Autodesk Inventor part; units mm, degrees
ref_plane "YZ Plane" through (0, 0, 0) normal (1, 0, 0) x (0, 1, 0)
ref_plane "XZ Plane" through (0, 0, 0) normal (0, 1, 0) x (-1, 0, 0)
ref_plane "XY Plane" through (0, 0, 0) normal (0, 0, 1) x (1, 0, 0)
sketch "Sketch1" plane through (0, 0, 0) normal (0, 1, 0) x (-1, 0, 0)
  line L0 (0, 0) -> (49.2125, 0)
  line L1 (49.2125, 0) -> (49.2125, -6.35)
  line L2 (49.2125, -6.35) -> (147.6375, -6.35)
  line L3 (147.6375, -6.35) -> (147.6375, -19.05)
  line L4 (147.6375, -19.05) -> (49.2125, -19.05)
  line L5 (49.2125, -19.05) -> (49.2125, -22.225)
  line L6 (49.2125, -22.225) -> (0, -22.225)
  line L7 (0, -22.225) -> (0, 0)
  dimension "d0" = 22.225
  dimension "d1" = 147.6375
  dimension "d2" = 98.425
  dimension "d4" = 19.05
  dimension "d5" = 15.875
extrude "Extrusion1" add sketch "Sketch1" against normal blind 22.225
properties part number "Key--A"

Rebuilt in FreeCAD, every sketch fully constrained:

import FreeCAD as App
import Part
import Sketcher
from FreeCAD import Vector
Q = App.Units.Quantity


def add_polygon(sketch, points):
    """Adds a closed chain of lines whose ends are joined by coincident constraints."""
    first, n = sketch.GeometryCount, len(points)
    for a, b in zip(points, points[1:] + points[:1]):
        sketch.addGeometry(Part.LineSegment(App.Vector(*a, 0), App.Vector(*b, 0)), False)
    for i in range(n):
        sketch.addConstraint(Sketcher.Constraint("Coincident", first + i, 2, first + (i + 1) % n, 1))

doc = App.newDocument("Part")
body = doc.addObject("PartDesign::Body", "Body")

# Sketch on XZ plane
sketch1 = doc.addObject("Sketcher::SketchObject", "Sketch")
body.addObject(sketch1)
sketch1.AttachmentSupport = (doc.XZ_Plane, [""])
sketch1.MapMode = "FlatFace"
add_polygon(sketch1, [(-49.2, 0), (0, 0), (0, -22.2), (-49.2, -22.2), (-49.2, -19.1), (-147.6, -19.1), (-147.6, -6.3), (-49.2, -6.3)])  # lines 0-7
sketch1.addConstraint([
    Sketcher.Constraint("Horizontal", 0),
    Sketcher.Constraint("Vertical", 1),
    Sketcher.Constraint("Horizontal", 2),
    Sketcher.Constraint("Vertical", 3),
    Sketcher.Constraint("Horizontal", 4),
    Sketcher.Constraint("Vertical", 5),
    Sketcher.Constraint("Horizontal", 6),
    Sketcher.Constraint("Vertical", 7),
    Sketcher.Constraint("Coincident", 0, 2, -1, 1),
    Sketcher.Constraint("Vertical", 3, 2, 6, 2),
    Sketcher.Constraint("DistanceX", 4, 2, 4, 1, Q("3.875 in")),
    Sketcher.Constraint("DistanceY", 1, 2, 1, 1, Q("0.875 in")),
    Sketcher.Constraint("DistanceY", 3, 2, -1, 1, Q("0.75 in")),
    Sketcher.Constraint("DistanceY", 5, 1, 5, 2, Q("0.5 in")),
    Sketcher.Constraint("DistanceX", 4, 2, -1, 1, Q("5.8125 in")),
])
pad1 = doc.addObject("PartDesign::Pad", "Pad")
body.addObject(pad1)
pad1.Profile = sketch1
pad1.Length = Q("0.875 in")

doc.recompute()
